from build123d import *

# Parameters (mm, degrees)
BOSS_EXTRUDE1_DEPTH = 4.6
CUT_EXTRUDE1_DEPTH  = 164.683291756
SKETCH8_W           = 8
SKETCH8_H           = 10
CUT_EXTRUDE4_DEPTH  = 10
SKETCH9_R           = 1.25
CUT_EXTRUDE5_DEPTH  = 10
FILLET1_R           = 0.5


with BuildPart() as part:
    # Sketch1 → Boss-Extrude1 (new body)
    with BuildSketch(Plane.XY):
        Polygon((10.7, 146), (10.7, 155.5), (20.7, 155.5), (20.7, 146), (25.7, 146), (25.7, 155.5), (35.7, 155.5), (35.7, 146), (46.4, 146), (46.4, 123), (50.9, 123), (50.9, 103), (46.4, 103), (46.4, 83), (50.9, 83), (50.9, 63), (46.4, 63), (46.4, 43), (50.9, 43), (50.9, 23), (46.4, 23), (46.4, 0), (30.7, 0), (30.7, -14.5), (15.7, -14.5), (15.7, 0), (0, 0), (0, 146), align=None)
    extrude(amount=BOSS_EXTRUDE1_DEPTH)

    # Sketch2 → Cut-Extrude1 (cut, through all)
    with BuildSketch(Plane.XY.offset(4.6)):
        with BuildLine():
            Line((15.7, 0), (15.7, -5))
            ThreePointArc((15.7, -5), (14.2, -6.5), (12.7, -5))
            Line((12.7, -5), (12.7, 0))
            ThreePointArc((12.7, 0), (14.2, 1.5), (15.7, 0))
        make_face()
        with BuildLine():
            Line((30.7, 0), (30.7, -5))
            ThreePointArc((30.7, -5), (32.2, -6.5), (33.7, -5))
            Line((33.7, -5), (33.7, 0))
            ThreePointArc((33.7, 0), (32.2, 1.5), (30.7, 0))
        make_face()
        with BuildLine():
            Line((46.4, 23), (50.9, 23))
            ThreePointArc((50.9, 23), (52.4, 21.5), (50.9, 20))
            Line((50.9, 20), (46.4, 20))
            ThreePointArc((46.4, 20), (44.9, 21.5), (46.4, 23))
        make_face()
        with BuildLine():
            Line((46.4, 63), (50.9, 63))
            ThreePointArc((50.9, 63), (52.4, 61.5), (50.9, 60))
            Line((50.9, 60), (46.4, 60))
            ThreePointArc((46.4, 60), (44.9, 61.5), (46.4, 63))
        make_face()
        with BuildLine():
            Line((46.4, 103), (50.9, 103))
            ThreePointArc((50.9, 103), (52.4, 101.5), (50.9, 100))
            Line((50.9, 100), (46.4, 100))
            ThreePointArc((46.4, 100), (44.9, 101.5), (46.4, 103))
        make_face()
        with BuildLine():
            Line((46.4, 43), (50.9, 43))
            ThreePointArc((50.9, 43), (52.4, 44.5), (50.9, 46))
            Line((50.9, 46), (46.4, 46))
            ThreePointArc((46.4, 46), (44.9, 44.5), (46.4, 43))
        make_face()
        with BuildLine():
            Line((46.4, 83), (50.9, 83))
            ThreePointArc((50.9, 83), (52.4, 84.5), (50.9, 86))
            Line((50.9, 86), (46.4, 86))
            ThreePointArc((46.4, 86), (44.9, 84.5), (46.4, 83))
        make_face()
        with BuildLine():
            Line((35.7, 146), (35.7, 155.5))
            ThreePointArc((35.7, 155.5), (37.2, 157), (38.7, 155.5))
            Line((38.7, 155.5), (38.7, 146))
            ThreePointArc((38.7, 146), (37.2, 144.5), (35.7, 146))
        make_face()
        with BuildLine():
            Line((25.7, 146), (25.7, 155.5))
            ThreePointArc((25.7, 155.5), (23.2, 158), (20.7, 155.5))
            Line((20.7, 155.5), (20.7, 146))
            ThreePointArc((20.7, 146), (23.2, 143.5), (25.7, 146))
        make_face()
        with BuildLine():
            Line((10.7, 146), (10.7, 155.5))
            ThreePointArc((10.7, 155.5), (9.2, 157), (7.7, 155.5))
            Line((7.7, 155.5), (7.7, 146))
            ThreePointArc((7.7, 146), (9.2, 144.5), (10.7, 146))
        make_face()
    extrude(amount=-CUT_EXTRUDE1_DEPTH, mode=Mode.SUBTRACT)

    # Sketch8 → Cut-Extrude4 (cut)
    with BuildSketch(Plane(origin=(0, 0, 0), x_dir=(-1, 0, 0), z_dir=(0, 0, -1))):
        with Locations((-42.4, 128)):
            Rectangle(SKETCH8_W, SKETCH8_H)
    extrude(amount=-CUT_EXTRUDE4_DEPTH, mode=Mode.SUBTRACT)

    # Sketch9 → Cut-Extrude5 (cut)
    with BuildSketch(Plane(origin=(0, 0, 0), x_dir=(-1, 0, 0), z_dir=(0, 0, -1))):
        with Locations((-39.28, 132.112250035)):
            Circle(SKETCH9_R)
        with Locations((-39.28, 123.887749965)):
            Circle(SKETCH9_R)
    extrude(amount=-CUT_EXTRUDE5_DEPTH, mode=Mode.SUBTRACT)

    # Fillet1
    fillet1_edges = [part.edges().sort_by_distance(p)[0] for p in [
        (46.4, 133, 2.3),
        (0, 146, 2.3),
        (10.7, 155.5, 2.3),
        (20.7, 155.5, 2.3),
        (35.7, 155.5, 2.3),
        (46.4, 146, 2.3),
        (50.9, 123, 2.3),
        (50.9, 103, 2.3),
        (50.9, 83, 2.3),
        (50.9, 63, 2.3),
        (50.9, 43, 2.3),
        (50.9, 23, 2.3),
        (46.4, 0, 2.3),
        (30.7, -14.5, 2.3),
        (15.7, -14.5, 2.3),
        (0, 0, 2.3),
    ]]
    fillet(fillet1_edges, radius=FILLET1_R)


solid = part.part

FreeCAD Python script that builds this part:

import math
import FreeCAD as App
import Part
import Sketcher
Q = App.Units.Quantity


def edges_at(feature, points):
    """Names of the edges that pass closest to the given points."""
    edges = feature.Shape.Edges
    near = lambda p: min(range(len(edges)), key=lambda i: edges[i].distToShape(Part.Vertex(*p))[0])
    return sorted({f"Edge{near(p) + 1}" for p in points})


def add_polygon(sketch, points):
    """Adds a closed chain of lines whose ends are joined by coincident constraints."""
    first, n = sketch.GeometryCount, len(points)
    for a, b in zip(points, points[1:] + points[:1]):
        sketch.addGeometry(Part.LineSegment(App.Vector(*a, 0), App.Vector(*b, 0)), False)
    for i in range(n):
        sketch.addConstraint(Sketcher.Constraint("Coincident", first + i, 2, first + (i + 1) % n, 1))

doc = App.newDocument("Part")
body = doc.addObject("PartDesign::Body", "Body")

sketch1 = body.newObject("Sketcher::SketchObject", "Sketch")
sketch1.AttachmentSupport = (doc.getObject("XY_Plane"), [""])
sketch1.MapMode = "FlatFace"
add_polygon(sketch1, [(10.7, 155.5), (10.7, 146), (0, 146), (0, 0), (15.7, 0), (15.7, -14.5), (30.7, -14.5), (30.7, 0), (46.4, 0), (46.4, 23), (50.9, 23), (50.9, 43), (46.4, 43), (46.4, 63), (50.9, 63), (50.9, 83), (46.4, 83), (46.4, 103), (50.9, 103), (50.9, 123), (46.4, 123), (46.4, 146), (35.7, 146), (35.7, 155.5), (25.7, 155.5), (25.7, 146), (20.7, 146), (20.7, 155.5)])
sketch1.addConstraint([
    Sketcher.Constraint("Vertical", 0),
    Sketcher.Constraint("Horizontal", 1),
    Sketcher.Constraint("Vertical", 2),
    Sketcher.Constraint("Horizontal", 3),
    Sketcher.Constraint("Vertical", 4),
    Sketcher.Constraint("Horizontal", 5),
    Sketcher.Constraint("Vertical", 6),
    Sketcher.Constraint("Horizontal", 7),
    Sketcher.Constraint("Vertical", 8),
    Sketcher.Constraint("Horizontal", 9),
    Sketcher.Constraint("Vertical", 10),
    Sketcher.Constraint("Horizontal", 11),
    Sketcher.Constraint("Vertical", 12),
    Sketcher.Constraint("Horizontal", 13),
    Sketcher.Constraint("Vertical", 14),
    Sketcher.Constraint("Horizontal", 15),
    Sketcher.Constraint("Vertical", 16),
    Sketcher.Constraint("Horizontal", 17),
    Sketcher.Constraint("Vertical", 18),
    Sketcher.Constraint("Horizontal", 19),
    Sketcher.Constraint("Vertical", 20),
    Sketcher.Constraint("Horizontal", 21),
    Sketcher.Constraint("Vertical", 22),
    Sketcher.Constraint("Horizontal", 23),
    Sketcher.Constraint("Vertical", 24),
    Sketcher.Constraint("Horizontal", 25),
    Sketcher.Constraint("Vertical", 26),
    Sketcher.Constraint("Horizontal", 27),
    Sketcher.Constraint("Coincident", 2, 2, -1, 1),
    Sketcher.Constraint("PointOnObject", 6, 2, -1),
    Sketcher.Constraint("Horizontal", 1, 2, 20, 2),
    Sketcher.Constraint("Horizontal", 21, 2, 24, 2),
    Sketcher.Constraint("Horizontal", 23, 2, 26, 2),
    Sketcher.Constraint("Vertical", 8, 2, 11, 2),
    Sketcher.Constraint("Vertical", 10, 2, 13, 2),
    Sketcher.Constraint("Vertical", 12, 2, 15, 2),
    Sketcher.Constraint("Vertical", 14, 2, 17, 2),
    Sketcher.Constraint("Vertical", 16, 2, 19, 2),
    Sketcher.Constraint("Equal", 3, 7),
    Sketcher.Constraint("Equal", 1, 21),
    Sketcher.Constraint("Equal", 23, 27),
    Sketcher.Constraint("Equal", 10, 12),
    Sketcher.Constraint("Equal", 12, 14),
    Sketcher.Constraint("Equal", 14, 16),
    Sketcher.Constraint("Equal", 16, 18),
    Sketcher.Constraint("Equal", 8, 20),
    Sketcher.Constraint("DistanceX", 5, 1, 5, 2, Q("15 mm")),
    Sketcher.Constraint("DistanceX", 23, 2, 23, 1, Q("10 mm")),
    Sketcher.Constraint("DistanceX", 25, 2, 25, 1, Q("5 mm")),
    Sketcher.Constraint("DistanceY", 2, 2, 2, 1, Q("146 mm")),
    Sketcher.Constraint("DistanceY", 8, 1, 8, 2, Q("23 mm")),
    Sketcher.Constraint("DistanceX", 1, 2, 1, 1, Q("10.7 mm")),
    Sketcher.Constraint("DistanceX", 9, 1, 9, 2, Q("4.5 mm")),
    Sketcher.Constraint("DistanceY", 0, 2, 0, 1, Q("9.5 mm")),
    Sketcher.Constraint("DistanceY", 4, 2, 4, 1, Q("14.5 mm")),
])
pad1 = body.newObject("PartDesign::Pad", "Pad")
pad1.Profile = sketch1
pad1.Length = 4.6

sketch2 = body.newObject("Sketcher::SketchObject", "Sketch001")
sketch2.AttachmentSupport = (doc.getObject("XY_Plane"), [""])
sketch2.MapMode = "FlatFace"
sketch2.AttachmentOffset = App.Placement(App.Vector(0, 0, 4.6), App.Rotation())
sketch2.addGeometry([
    Part.LineSegment(App.Vector(15.7, -5, 0), App.Vector(15.7, 0, 0)),
    Part.ArcOfCircle(Part.Circle(App.Vector(14.2, 0, 0), App.Vector(0, 0, 1), 1.5), math.radians(0), math.radians(180)),
    Part.LineSegment(App.Vector(12.7, 0, 0), App.Vector(12.7, -5, 0)),
    Part.ArcOfCircle(Part.Circle(App.Vector(14.2, -5, 0), App.Vector(0, 0, 1), 1.5), math.radians(180), math.radians(360)),
    Part.LineSegment(App.Vector(30.7, 0, 0), App.Vector(30.7, -5, 0)),
    Part.ArcOfCircle(Part.Circle(App.Vector(32.2, -5, 0), App.Vector(0, 0, 1), 1.5), math.radians(180), math.radians(360)),
    Part.LineSegment(App.Vector(33.7, -5, 0), App.Vector(33.7, 0, 0)),
    Part.ArcOfCircle(Part.Circle(App.Vector(32.2, 0, 0), App.Vector(0, 0, 1), 1.5), math.radians(0), math.radians(180)),
    Part.LineSegment(App.Vector(50.9, 23, 0), App.Vector(46.4, 23, 0)),
    Part.ArcOfCircle(Part.Circle(App.Vector(46.4, 21.5, 0), App.Vector(0, 0, 1), 1.5), math.radians(90), math.radians(270)),
    Part.LineSegment(App.Vector(46.4, 20, 0), App.Vector(50.9, 20, 0)),
    Part.ArcOfCircle(Part.Circle(App.Vector(50.9, 21.5, 0), App.Vector(0, 0, 1), 1.5), math.radians(-90), math.radians(90)),
    Part.LineSegment(App.Vector(50.9, 63, 0), App.Vector(46.4, 63, 0)),
    Part.ArcOfCircle(Part.Circle(App.Vector(46.4, 61.5, 0), App.Vector(0, 0, 1), 1.5), math.radians(90), math.radians(270)),
    Part.LineSegment(App.Vector(46.4, 60, 0), App.Vector(50.9, 60, 0)),
    Part.ArcOfCircle(Part.Circle(App.Vector(50.9, 61.5, 0), App.Vector(0, 0, 1), 1.5), math.radians(-90), math.radians(90)),
    Part.LineSegment(App.Vector(50.9, 103, 0), App.Vector(46.4, 103, 0)),
    Part.ArcOfCircle(Part.Circle(App.Vector(46.4, 101.5, 0), App.Vector(0, 0, 1), 1.5), math.radians(90), math.radians(270)),
    Part.LineSegment(App.Vector(46.4, 100, 0), App.Vector(50.9, 100, 0)),
    Part.ArcOfCircle(Part.Circle(App.Vector(50.9, 101.5, 0), App.Vector(0, 0, 1), 1.5), math.radians(-90), math.radians(90)),
    Part.LineSegment(App.Vector(46.4, 43, 0), App.Vector(50.9, 43, 0)),
    Part.ArcOfCircle(Part.Circle(App.Vector(50.9, 44.5, 0), App.Vector(0, 0, 1), 1.5), math.radians(-90), math.radians(90)),
    Part.LineSegment(App.Vector(50.9, 46, 0), App.Vector(46.4, 46, 0)),
    Part.ArcOfCircle(Part.Circle(App.Vector(46.4, 44.5, 0), App.Vector(0, 0, 1), 1.5), math.radians(90), math.radians(270)),
    Part.LineSegment(App.Vector(46.4, 83, 0), App.Vector(50.9, 83, 0)),
    Part.ArcOfCircle(Part.Circle(App.Vector(50.9, 84.5, 0), App.Vector(0, 0, 1), 1.5), math.radians(-90), math.radians(90)),
    Part.LineSegment(App.Vector(50.9, 86, 0), App.Vector(46.4, 86, 0)),
    Part.ArcOfCircle(Part.Circle(App.Vector(46.4, 84.5, 0), App.Vector(0, 0, 1), 1.5), math.radians(90), math.radians(270)),
    Part.LineSegment(App.Vector(35.7, 155.5, 0), App.Vector(35.7, 146, 0)),
    Part.ArcOfCircle(Part.Circle(App.Vector(37.2, 146, 0), App.Vector(0, 0, 1), 1.5), math.radians(180), math.radians(360)),
    Part.LineSegment(App.Vector(38.7, 146, 0), App.Vector(38.7, 155.5, 0)),
    Part.ArcOfCircle(Part.Circle(App.Vector(37.2, 155.5, 0), App.Vector(0, 0, 1), 1.5), math.radians(0), math.radians(180)),
    Part.LineSegment(App.Vector(25.7, 146, 0), App.Vector(25.7, 155.5, 0)),
    Part.ArcOfCircle(Part.Circle(App.Vector(23.2, 155.5, 0), App.Vector(0, 0, 1), 2.5), math.radians(0), math.radians(180)),
    Part.LineSegment(App.Vector(20.7, 155.5, 0), App.Vector(20.7, 146, 0)),
    Part.ArcOfCircle(Part.Circle(App.Vector(23.2, 146, 0), App.Vector(0, 0, 1), 2.5), math.radians(180), math.radians(360)),
    Part.LineSegment(App.Vector(10.7, 146, 0), App.Vector(10.7, 155.5, 0)),
    Part.ArcOfCircle(Part.Circle(App.Vector(9.2, 155.5, 0), App.Vector(0, 0, 1), 1.5), math.radians(0), math.radians(180)),
    Part.LineSegment(App.Vector(7.7, 155.5, 0), App.Vector(7.7, 146, 0)),
    Part.ArcOfCircle(Part.Circle(App.Vector(9.2, 146, 0), App.Vector(0, 0, 1), 1.5), math.radians(180), math.radians(360)),
], False)
sketch2.addConstraint([
    Sketcher.Constraint("Tangent", 0, 2, 1, 1),
    Sketcher.Constraint("Tangent", 1, 2, 2, 1),
    Sketcher.Constraint("Tangent", 2, 2, 3, 1),
    Sketcher.Constraint("Tangent", 3, 2, 0, 1),
    Sketcher.Constraint("Tangent", 4, 2, 5, 1),
    Sketcher.Constraint("Tangent", 5, 2, 6, 1),
    Sketcher.Constraint("Tangent", 6, 2, 7, 1),
    Sketcher.Constraint("Tangent", 7, 2, 4, 1),
    Sketcher.Constraint("Tangent", 8, 2, 9, 1),
    Sketcher.Constraint("Tangent", 9, 2, 10, 1),
    Sketcher.Constraint("Tangent", 10, 2, 11, 1),
    Sketcher.Constraint("Tangent", 11, 2, 8, 1),
    Sketcher.Constraint("Tangent", 12, 2, 13, 1),
    Sketcher.Constraint("Tangent", 13, 2, 14, 1),
    Sketcher.Constraint("Tangent", 14, 2, 15, 1),
    Sketcher.Constraint("Tangent", 15, 2, 12, 1),
    Sketcher.Constraint("Tangent", 16, 2, 17, 1),
    Sketcher.Constraint("Tangent", 17, 2, 18, 1),
    Sketcher.Constraint("Tangent", 18, 2, 19, 1),
    Sketcher.Constraint("Tangent", 19, 2, 16, 1),
    Sketcher.Constraint("Tangent", 20, 2, 21, 1),
    Sketcher.Constraint("Tangent", 21, 2, 22, 1),
    Sketcher.Constraint("Tangent", 22, 2, 23, 1),
    Sketcher.Constraint("Tangent", 23, 2, 20, 1),
    Sketcher.Constraint("Tangent", 24, 2, 25, 1),
    Sketcher.Constraint("Tangent", 25, 2, 26, 1),
    Sketcher.Constraint("Tangent", 26, 2, 27, 1),
    Sketcher.Constraint("Tangent", 27, 2, 24, 1),
    Sketcher.Constraint("Tangent", 28, 2, 29, 1),
    Sketcher.Constraint("Tangent", 29, 2, 30, 1),
    Sketcher.Constraint("Tangent", 30, 2, 31, 1),
    Sketcher.Constraint("Tangent", 31, 2, 28, 1),
    Sketcher.Constraint("Tangent", 32, 2, 33, 1),
    Sketcher.Constraint("Tangent", 33, 2, 34, 1),
    Sketcher.Constraint("Tangent", 34, 2, 35, 1),
    Sketcher.Constraint("Tangent", 35, 2, 32, 1),
    Sketcher.Constraint("Tangent", 36, 2, 37, 1),
    Sketcher.Constraint("Tangent", 37, 2, 38, 1),
    Sketcher.Constraint("Tangent", 38, 2, 39, 1),
    Sketcher.Constraint("Tangent", 39, 2, 36, 1),
    Sketcher.Constraint("Vertical", 0),
    Sketcher.Constraint("Vertical", 2),
    Sketcher.Constraint("Vertical", 4),
    Sketcher.Constraint("Vertical", 6),
    Sketcher.Constraint("Horizontal", 8),
    Sketcher.Constraint("Horizontal", 10),
    Sketcher.Constraint("Horizontal", 12),
    Sketcher.Constraint("Horizontal", 14),
    Sketcher.Constraint("Horizontal", 16),
    Sketcher.Constraint("Horizontal", 18),
    Sketcher.Constraint("Horizontal", 20),
    Sketcher.Constraint("Horizontal", 22),
    Sketcher.Constraint("Horizontal", 24),
    Sketcher.Constraint("Horizontal", 26),
    Sketcher.Constraint("Vertical", 28),
    Sketcher.Constraint("Vertical", 30),
    Sketcher.Constraint("Vertical", 32),
    Sketcher.Constraint("Vertical", 34),
    Sketcher.Constraint("Vertical", 36),
    Sketcher.Constraint("Vertical", 38),
    Sketcher.Constraint("Equal", 3, 5),
    Sketcher.Constraint("Equal", 7, 9),
    Sketcher.Constraint("Equal", 11, 13),
    Sketcher.Constraint("Equal", 15, 17),
    Sketcher.Constraint("Equal", 19, 21),
    Sketcher.Constraint("Equal", 23, 25),
    Sketcher.Constraint("Equal", 27, 29),
    Sketcher.Constraint("Equal", 31, 37),
    Sketcher.Constraint("PointOnObject", 1, 3, -1),
    Sketcher.Constraint("PointOnObject", 7, 3, -1),
    Sketcher.Constraint("Horizontal", 3, 3, 5, 3),
    Sketcher.Constraint("Horizontal", 31, 3, 33, 3),
    Sketcher.Constraint("Horizontal", 29, 3, 35, 3),
    Sketcher.Constraint("Horizontal", 33, 3, 37, 3),
    Sketcher.Constraint("Horizontal", 35, 3, 39, 3),
    Sketcher.Constraint("Vertical", 9, 3, 13, 3),
    Sketcher.Constraint("Vertical", 11, 3, 15, 3),
    Sketcher.Constraint("Vertical", 13, 3, 17, 3),
    Sketcher.Constraint("Vertical", 15, 3, 19, 3),
    Sketcher.Constraint("Vertical", 19, 3, 21, 3),
    Sketcher.Constraint("Vertical", 17, 3, 23, 3),
    Sketcher.Constraint("Vertical", 21, 3, 25, 3),
    Sketcher.Constraint("Vertical", 23, 3, 27, 3),
    Sketcher.Constraint("Radius", 1, Q("1.5 mm")),
    Sketcher.Constraint("Radius", 33, Q("2.5 mm")),
    Sketcher.Constraint("DistanceY", 0, 1, 0, 2, Q("5 mm")),
    Sketcher.Constraint("DistanceX", 8, 2, 8, 1, Q("4.5 mm")),
    Sketcher.Constraint("DistanceY", 28, 2, 28, 1, Q("9.5 mm")),
    Sketcher.Constraint("DistanceY", -1, 1, 29, 3, Q("146 mm")),
    Sketcher.Constraint("DistanceY", -1, 1, 8, 2, Q("23 mm")),
    Sketcher.Constraint("DistanceY", -1, 1, 12, 2, Q("63 mm")),
    Sketcher.Constraint("DistanceY", -1, 1, 16, 2, Q("103 mm")),
    Sketcher.Constraint("DistanceY", -1, 1, 20, 2, Q("43 mm")),
    Sketcher.Constraint("DistanceY", -1, 1, 24, 2, Q("83 mm")),
    Sketcher.Constraint("DistanceX", 3, 3, 5, 3, Q("18 mm")),
    Sketcher.Constraint("DistanceX", 33, 3, 31, 3, Q("14 mm")),
    Sketcher.Constraint("DistanceX", 37, 3, 33, 3, Q("14 mm")),
    Sketcher.Constraint("DistanceX", -1, 1, 1, 3, Q("14.2 mm")),
    Sketcher.Constraint("DistanceX", -1, 1, 9, 3, Q("46.4 mm")),
    Sketcher.Constraint("DistanceX", -1, 1, 29, 3, Q("37.2 mm")),
])
pocket1 = body.newObject("PartDesign::Pocket", "Pocket")
pocket1.Profile = sketch2
pocket1.Type = "ThroughAll"

sketch3 = body.newObject("Sketcher::SketchObject", "Sketch002")
sketch3.AttachmentSupport = (doc.getObject("XY_Plane"), [""])
sketch3.MapMode = "FlatFace"
add_polygon(sketch3, [(46, 133), (46, 123), (38, 123), (38, 133)])
sketch3.addConstraint([
    Sketcher.Constraint("Vertical", 0),
    Sketcher.Constraint("Horizontal", 1),
    Sketcher.Constraint("Vertical", 2),
    Sketcher.Constraint("Horizontal", 3),
    Sketcher.Constraint("DistanceX", 1, 2, 1, 1, Q("8 mm")),
    Sketcher.Constraint("DistanceY", 0, 2, 0, 1, Q("10 mm")),
    Sketcher.Constraint("DistanceY", -1, 1, 0, 2, Q("123 mm")),
    Sketcher.Constraint("DistanceX", -1, 1, 0, 2, Q("46.4 mm")),
])
pocket2 = body.newObject("PartDesign::Pocket", "Pocket001")
pocket2.Profile = sketch3
pocket2.Length = 10
pocket2.Reversed = True

sketch4 = body.newObject("Sketcher::SketchObject", "Sketch003")
sketch4.AttachmentSupport = (doc.getObject("XY_Plane"), [""])
sketch4.MapMode = "FlatFace"
sketch4.addGeometry([
    Part.Circle(App.Vector(39.3, 132.1, 0), App.Vector(0, 0, 1), 1.2),
    Part.Circle(App.Vector(39.3, 123.9, 0), App.Vector(0, 0, 1), 1.2),
], False)
sketch4.addConstraint([
    Sketcher.Constraint("Equal", 0, 1),
    Sketcher.Constraint("Vertical", 0, 3, 1, 3),
    Sketcher.Constraint("Diameter", 0, Q("2.5 mm")),
    Sketcher.Constraint("DistanceX", -1, 1, 0, 3, Q("39.28 mm")),
    Sketcher.Constraint("DistanceY", 1, 3, 0, 3, Q("8.2245 mm")),
    Sketcher.Constraint("DistanceY", -1, 1, 0, 3, Q("132.11225 mm")),
])
pocket3 = body.newObject("PartDesign::Pocket", "Pocket002")
pocket3.Profile = sketch4
pocket3.Length = 10
pocket3.Reversed = True
doc.recompute()

fillet = body.newObject("PartDesign::Fillet", "Fillet")
fillet.Base = (pocket3, edges_at(pocket3, [
    (46.4, 133, 2.3),
    (0, 146, 2.3),
    (10.7, 155.5, 2.3),
    (20.7, 155.5, 2.3),
    (35.7, 155.5, 2.3),
    (46.4, 146, 2.3),
    (50.9, 123, 2.3),
    (50.9, 103, 2.3),
    (50.9, 83, 2.3),
    (50.9, 63, 2.3),
    (50.9, 43, 2.3),
    (50.9, 23, 2.3),
    (46.4, 0, 2.3),
    (30.7, -14.5, 2.3),
    (15.7, -14.5, 2.3),
    (0, 0, 2.3),
]))
fillet.Radius = 0.5

doc.recompute()
